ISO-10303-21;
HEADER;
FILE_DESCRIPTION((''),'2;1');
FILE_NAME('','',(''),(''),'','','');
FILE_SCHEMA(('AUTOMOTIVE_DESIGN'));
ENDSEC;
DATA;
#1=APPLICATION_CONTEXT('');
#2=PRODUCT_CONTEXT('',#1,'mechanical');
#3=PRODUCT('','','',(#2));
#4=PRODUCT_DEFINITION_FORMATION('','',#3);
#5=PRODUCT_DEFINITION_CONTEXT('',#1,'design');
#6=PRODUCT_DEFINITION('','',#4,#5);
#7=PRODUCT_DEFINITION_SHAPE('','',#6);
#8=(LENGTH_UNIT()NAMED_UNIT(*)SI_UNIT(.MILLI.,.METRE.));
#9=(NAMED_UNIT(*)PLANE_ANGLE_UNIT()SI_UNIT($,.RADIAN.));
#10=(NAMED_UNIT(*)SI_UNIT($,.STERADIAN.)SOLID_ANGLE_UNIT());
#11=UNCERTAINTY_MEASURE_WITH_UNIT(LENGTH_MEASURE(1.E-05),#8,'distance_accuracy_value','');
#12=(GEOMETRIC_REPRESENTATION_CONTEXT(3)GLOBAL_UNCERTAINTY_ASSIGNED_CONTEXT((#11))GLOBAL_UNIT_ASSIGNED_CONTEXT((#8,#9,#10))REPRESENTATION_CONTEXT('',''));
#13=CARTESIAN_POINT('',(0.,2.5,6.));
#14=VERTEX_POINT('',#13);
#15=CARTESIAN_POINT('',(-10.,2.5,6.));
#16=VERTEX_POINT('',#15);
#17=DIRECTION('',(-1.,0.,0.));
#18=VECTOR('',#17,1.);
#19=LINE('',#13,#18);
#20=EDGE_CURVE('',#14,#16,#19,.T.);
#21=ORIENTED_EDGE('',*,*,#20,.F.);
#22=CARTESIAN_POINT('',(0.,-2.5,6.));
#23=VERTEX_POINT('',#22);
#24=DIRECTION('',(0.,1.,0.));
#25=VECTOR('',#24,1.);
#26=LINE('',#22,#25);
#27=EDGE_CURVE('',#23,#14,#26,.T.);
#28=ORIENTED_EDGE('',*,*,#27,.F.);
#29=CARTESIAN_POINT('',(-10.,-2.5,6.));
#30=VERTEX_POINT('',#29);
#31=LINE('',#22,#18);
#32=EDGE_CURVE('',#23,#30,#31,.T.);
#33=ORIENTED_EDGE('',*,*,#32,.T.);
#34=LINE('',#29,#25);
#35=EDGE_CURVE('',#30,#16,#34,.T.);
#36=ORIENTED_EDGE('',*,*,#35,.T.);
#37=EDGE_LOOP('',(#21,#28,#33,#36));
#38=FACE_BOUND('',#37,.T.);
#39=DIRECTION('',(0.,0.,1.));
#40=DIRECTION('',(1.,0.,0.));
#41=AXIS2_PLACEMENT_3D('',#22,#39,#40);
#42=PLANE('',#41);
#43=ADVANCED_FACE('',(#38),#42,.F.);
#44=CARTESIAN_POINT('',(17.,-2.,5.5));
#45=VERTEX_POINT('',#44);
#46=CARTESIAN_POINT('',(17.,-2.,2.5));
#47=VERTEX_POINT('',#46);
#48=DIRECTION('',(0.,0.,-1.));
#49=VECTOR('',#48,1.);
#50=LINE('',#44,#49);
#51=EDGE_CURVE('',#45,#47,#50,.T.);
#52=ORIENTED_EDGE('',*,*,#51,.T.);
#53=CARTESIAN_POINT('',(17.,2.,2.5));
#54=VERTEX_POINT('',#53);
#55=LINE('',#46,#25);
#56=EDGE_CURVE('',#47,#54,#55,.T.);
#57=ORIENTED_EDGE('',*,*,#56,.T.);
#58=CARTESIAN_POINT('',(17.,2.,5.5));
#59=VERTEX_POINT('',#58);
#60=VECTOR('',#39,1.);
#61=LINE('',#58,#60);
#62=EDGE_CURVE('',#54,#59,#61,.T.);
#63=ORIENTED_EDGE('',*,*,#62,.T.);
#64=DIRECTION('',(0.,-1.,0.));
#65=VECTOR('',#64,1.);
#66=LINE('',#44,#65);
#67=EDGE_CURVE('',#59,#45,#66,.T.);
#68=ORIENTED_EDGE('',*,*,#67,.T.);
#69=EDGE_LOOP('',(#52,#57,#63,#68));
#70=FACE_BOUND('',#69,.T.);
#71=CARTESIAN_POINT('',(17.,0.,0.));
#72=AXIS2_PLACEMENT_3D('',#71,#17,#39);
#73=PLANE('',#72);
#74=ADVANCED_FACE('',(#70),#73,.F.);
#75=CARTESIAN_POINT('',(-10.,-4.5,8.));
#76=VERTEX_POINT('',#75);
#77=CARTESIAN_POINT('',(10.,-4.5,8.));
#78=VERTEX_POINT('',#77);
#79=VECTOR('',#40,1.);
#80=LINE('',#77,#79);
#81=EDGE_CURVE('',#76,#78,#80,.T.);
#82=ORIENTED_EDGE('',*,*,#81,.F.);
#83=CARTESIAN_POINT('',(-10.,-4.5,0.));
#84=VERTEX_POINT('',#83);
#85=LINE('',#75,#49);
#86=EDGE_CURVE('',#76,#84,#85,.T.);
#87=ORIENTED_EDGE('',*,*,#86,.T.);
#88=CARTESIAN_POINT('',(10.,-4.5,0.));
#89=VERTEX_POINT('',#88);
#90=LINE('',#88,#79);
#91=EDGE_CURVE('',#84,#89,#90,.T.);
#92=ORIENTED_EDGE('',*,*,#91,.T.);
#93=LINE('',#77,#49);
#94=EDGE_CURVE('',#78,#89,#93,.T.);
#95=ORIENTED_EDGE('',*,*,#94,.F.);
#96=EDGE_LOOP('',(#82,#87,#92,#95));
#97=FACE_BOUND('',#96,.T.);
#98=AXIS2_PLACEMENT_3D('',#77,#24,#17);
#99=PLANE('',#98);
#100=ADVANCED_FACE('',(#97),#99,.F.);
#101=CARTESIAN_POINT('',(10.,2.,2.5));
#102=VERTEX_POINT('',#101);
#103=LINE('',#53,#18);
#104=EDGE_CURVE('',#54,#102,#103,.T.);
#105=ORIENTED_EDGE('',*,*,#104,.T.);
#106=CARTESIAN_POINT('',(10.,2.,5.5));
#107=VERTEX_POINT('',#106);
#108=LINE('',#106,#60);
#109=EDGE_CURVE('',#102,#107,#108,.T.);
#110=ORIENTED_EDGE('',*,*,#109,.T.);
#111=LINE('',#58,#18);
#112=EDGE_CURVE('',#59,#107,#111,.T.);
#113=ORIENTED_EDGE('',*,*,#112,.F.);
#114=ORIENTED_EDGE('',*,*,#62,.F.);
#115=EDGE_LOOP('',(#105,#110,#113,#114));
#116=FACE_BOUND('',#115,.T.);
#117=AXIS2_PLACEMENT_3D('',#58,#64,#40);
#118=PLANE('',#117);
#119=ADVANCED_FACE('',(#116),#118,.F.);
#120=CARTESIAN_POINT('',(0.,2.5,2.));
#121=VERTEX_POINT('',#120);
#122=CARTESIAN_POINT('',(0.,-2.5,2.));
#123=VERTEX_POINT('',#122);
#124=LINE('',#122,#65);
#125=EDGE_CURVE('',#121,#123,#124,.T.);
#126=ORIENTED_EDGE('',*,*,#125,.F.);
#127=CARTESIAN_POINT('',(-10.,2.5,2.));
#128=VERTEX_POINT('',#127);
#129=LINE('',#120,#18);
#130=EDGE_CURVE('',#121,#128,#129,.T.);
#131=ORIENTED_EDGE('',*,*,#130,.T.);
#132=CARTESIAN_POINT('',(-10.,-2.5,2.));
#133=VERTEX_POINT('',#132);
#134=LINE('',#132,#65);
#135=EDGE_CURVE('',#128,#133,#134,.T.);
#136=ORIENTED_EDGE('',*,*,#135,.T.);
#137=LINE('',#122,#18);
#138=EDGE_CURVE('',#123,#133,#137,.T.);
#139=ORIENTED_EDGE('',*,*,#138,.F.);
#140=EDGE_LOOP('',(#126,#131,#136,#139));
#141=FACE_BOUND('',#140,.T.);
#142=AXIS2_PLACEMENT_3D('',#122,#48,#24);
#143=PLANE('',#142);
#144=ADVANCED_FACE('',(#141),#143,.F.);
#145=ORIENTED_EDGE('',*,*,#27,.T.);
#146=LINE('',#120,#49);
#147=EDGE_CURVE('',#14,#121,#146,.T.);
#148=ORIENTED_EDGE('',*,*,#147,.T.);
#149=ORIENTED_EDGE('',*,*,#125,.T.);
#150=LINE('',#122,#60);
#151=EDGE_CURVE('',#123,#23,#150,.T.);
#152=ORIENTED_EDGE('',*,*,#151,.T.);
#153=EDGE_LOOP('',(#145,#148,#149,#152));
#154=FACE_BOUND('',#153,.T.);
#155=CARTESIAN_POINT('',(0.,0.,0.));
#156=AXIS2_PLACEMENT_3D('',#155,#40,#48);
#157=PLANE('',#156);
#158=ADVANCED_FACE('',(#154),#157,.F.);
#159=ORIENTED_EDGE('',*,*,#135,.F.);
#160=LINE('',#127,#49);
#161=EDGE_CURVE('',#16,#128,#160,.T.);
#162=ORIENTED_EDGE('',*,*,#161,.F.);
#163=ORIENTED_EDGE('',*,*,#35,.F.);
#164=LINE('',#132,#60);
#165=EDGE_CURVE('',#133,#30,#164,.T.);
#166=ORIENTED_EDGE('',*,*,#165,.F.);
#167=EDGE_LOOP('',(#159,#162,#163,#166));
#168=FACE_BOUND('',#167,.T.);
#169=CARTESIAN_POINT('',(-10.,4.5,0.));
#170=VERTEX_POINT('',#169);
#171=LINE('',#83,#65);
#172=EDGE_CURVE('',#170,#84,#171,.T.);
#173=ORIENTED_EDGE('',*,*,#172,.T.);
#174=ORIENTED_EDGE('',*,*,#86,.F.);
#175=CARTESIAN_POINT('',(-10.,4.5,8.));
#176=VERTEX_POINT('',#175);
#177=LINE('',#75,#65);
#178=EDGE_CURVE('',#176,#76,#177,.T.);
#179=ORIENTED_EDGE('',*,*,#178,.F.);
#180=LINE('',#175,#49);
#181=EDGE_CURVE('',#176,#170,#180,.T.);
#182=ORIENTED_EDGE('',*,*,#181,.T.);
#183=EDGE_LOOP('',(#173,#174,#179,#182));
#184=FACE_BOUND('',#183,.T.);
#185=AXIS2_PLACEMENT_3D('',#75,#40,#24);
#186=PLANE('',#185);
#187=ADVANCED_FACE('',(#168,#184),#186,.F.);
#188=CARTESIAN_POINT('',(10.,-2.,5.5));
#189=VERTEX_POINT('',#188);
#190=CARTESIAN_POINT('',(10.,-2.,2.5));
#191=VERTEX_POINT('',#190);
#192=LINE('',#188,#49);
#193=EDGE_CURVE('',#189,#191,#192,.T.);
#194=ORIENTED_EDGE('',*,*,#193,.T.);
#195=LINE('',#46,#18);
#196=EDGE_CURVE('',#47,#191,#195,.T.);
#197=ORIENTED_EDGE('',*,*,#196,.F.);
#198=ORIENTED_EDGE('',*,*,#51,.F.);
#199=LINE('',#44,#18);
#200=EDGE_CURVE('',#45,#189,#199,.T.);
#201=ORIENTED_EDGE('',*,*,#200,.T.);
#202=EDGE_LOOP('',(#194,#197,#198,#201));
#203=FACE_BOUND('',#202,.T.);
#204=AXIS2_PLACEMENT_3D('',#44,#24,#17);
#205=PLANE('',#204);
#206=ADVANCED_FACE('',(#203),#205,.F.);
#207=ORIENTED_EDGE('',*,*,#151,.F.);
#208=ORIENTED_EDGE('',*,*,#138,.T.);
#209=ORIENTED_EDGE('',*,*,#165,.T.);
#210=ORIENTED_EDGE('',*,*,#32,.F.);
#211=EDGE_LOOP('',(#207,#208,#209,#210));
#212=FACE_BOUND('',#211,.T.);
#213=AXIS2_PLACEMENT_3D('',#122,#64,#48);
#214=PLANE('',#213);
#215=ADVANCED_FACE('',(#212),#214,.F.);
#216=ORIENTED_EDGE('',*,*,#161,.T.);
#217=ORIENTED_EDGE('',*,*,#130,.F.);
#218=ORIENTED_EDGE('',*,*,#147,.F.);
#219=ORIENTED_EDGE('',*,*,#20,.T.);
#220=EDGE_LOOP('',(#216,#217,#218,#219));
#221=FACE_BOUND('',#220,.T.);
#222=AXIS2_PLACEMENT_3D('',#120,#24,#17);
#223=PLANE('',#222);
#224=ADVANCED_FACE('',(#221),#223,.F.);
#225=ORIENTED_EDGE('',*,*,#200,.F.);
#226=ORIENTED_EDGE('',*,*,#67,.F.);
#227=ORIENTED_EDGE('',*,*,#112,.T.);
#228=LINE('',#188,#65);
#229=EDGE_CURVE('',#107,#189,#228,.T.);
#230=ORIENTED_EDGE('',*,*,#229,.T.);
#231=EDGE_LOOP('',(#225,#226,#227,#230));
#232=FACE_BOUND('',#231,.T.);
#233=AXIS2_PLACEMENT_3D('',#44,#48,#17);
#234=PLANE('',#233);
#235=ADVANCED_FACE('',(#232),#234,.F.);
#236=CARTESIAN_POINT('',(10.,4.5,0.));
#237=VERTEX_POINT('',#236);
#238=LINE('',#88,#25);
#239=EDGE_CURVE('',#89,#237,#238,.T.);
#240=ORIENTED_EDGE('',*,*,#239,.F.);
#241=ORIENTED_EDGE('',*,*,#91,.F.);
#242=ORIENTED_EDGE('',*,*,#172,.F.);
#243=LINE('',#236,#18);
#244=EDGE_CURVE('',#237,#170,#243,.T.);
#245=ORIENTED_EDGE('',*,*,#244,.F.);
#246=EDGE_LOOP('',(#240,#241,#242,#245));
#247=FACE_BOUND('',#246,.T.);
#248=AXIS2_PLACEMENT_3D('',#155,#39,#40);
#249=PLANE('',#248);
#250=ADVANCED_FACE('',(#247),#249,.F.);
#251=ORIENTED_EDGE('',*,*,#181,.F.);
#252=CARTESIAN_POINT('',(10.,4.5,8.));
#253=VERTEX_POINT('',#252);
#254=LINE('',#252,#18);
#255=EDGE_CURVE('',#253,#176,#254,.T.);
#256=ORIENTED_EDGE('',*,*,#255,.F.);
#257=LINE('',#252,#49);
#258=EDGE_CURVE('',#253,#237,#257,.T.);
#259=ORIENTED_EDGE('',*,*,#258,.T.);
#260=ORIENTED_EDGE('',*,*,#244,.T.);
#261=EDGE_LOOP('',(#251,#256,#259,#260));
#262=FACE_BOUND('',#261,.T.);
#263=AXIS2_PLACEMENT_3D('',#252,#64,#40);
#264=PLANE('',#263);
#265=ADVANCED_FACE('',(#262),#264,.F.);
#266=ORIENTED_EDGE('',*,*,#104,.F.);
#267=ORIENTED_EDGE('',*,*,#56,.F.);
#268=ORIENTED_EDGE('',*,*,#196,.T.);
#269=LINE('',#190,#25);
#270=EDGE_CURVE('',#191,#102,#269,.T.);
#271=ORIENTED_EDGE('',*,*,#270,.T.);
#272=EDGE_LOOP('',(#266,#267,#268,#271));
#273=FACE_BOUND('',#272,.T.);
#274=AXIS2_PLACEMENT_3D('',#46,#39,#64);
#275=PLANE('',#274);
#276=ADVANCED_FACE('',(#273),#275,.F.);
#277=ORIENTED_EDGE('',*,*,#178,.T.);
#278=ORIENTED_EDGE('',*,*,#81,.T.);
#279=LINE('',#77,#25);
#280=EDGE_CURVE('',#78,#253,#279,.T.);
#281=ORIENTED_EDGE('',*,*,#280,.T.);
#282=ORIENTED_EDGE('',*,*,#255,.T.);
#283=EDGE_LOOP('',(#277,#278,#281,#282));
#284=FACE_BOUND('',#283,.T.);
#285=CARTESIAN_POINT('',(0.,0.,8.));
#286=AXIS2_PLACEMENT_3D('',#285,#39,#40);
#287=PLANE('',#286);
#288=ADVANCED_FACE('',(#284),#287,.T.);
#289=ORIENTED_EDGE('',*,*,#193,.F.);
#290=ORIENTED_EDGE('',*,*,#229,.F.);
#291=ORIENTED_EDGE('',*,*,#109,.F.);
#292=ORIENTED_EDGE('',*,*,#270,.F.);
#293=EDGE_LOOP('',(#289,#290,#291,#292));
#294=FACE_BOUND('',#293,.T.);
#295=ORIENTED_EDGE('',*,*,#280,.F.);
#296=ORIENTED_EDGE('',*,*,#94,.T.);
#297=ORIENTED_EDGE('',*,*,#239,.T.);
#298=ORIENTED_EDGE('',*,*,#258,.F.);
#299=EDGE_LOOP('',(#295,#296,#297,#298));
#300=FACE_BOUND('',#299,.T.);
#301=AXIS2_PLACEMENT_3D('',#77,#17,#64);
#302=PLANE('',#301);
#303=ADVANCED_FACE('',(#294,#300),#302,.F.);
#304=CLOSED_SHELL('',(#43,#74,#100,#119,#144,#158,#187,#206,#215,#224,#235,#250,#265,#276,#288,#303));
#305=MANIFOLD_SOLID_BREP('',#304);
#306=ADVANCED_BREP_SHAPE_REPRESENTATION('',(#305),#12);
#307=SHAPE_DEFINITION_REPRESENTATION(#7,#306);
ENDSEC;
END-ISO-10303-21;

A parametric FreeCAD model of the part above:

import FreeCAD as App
import Part
import Sketcher

V = App.Vector
Q = App.Units.Quantity

doc = App.newDocument("Part")
body = doc.addObject("PartDesign::Body", "Body")

sketch1 = doc.addObject("Sketcher::SketchObject", "Sketch")
body.addObject(sketch1)
sketch1.AttachmentSupport = (doc.XY_Plane, [""])
sketch1.MapMode = "FlatFace"
sketch1.addGeometry([
    Part.LineSegment(V(-10, 4, 0), V(-10, -4, 0)),
    Part.LineSegment(V(-10, -4, 0), V(10, -4, 0)),
    Part.LineSegment(V(10, -4, 0), V(10, 4, 0)),
    Part.LineSegment(V(10, 4, 0), V(-10, 4, 0)),
], False)
sketch1.addConstraint([
    Sketcher.Constraint("Coincident", 0, 2, 1, 1),
    Sketcher.Constraint("Coincident", 1, 2, 2, 1),
    Sketcher.Constraint("Coincident", 2, 2, 3, 1),
    Sketcher.Constraint("Coincident", 3, 2, 0, 1),
    Sketcher.Constraint("Vertical", 0),
    Sketcher.Constraint("Horizontal", 1),
    Sketcher.Constraint("Vertical", 2),
    Sketcher.Constraint("Horizontal", 3),
    Sketcher.Constraint("Symmetric", 0, 2, 2, 2, -1, 1),
    Sketcher.Constraint("DistanceX", 1, 1, 1, 2, Q("20 mm")),
    Sketcher.Constraint("DistanceY", 0, 2, 0, 1, Q("9 mm")),
])
pad1 = doc.addObject("PartDesign::Pad", "Pad")
body.addObject(pad1)
pad1.Profile = sketch1
pad1.Length = 8

sketch2 = doc.addObject("Sketcher::SketchObject", "Sketch001")
body.addObject(sketch2)
sketch2.AttachmentSupport = (doc.YZ_Plane, [""])
sketch2.MapMode = "FlatFace"
sketch2.AttachmentOffset = App.Placement(V(0, 0, -10), App.Rotation())
sketch2.addGeometry([
    Part.LineSegment(V(2.5, 2, 0), V(-2.5, 2, 0)),
    Part.LineSegment(V(-2.5, 2, 0), V(-2.5, 6, 0)),
    Part.LineSegment(V(-2.5, 6, 0), V(2.5, 6, 0)),
    Part.LineSegment(V(2.5, 6, 0), V(2.5, 2, 0)),
], False)
sketch2.addConstraint([
    Sketcher.Constraint("Coincident", 0, 2, 1, 1),
    Sketcher.Constraint("Coincident", 1, 2, 2, 1),
    Sketcher.Constraint("Coincident", 2, 2, 3, 1),
    Sketcher.Constraint("Coincident", 3, 2, 0, 1),
    Sketcher.Constraint("Horizontal", 0),
    Sketcher.Constraint("Vertical", 1),
    Sketcher.Constraint("Horizontal", 2),
    Sketcher.Constraint("Vertical", 3),
    Sketcher.Constraint("DistanceX", 0, 2, 0, 1, Q("5 mm")),
    Sketcher.Constraint("DistanceY", 1, 1, 1, 2, Q("4 mm")),
    Sketcher.Constraint("DistanceY", -1, 1, 0, 2, Q("2 mm")),
    Sketcher.Constraint("DistanceX", 0, 2, -1, 1, Q("2.5 mm")),
])
pocket1 = doc.addObject("PartDesign::Pocket", "Pocket")
body.addObject(pocket1)
pocket1.Profile = sketch2
pocket1.Length = 10
pocket1.Reversed = True

sketch3 = doc.addObject("Sketcher::SketchObject", "Sketch002")
body.addObject(sketch3)
sketch3.AttachmentSupport = (doc.YZ_Plane, [""])
sketch3.MapMode = "FlatFace"
sketch3.AttachmentOffset = App.Placement(V(0, 0, 10), App.Rotation())
sketch3.addGeometry([
    Part.LineSegment(V(2, 5.5, 0), V(-2, 5.5, 0)),
    Part.LineSegment(V(-2, 5.5, 0), V(-2, 2.5, 0)),
    Part.LineSegment(V(-2, 2.5, 0), V(2, 2.5, 0)),
    Part.LineSegment(V(2, 2.5, 0), V(2, 5.5, 0)),
], False)
sketch3.addConstraint([
    Sketcher.Constraint("Coincident", 0, 2, 1, 1),
    Sketcher.Constraint("Coincident", 1, 2, 2, 1),
    Sketcher.Constraint("Coincident", 2, 2, 3, 1),
    Sketcher.Constraint("Coincident", 3, 2, 0, 1),
    Sketcher.Constraint("Horizontal", 0),
    Sketcher.Constraint("Vertical", 1),
    Sketcher.Constraint("Horizontal", 2),
    Sketcher.Constraint("Vertical", 3),
    Sketcher.Constraint("DistanceX", 0, 2, 0, 1, Q("4 mm")),
    Sketcher.Constraint("DistanceY", 1, 2, 1, 1, Q("3 mm")),
    Sketcher.Constraint("DistanceX", 0, 2, -1, 1, Q("2 mm")),
    Sketcher.Constraint("DistanceY", -1, 1, 0, 2, Q("5.5 mm")),
])
pad2 = doc.addObject("PartDesign::Pad", "Pad001")
body.addObject(pad2)
pad2.Profile = sketch3
pad2.Length = 7

doc.recompute()
